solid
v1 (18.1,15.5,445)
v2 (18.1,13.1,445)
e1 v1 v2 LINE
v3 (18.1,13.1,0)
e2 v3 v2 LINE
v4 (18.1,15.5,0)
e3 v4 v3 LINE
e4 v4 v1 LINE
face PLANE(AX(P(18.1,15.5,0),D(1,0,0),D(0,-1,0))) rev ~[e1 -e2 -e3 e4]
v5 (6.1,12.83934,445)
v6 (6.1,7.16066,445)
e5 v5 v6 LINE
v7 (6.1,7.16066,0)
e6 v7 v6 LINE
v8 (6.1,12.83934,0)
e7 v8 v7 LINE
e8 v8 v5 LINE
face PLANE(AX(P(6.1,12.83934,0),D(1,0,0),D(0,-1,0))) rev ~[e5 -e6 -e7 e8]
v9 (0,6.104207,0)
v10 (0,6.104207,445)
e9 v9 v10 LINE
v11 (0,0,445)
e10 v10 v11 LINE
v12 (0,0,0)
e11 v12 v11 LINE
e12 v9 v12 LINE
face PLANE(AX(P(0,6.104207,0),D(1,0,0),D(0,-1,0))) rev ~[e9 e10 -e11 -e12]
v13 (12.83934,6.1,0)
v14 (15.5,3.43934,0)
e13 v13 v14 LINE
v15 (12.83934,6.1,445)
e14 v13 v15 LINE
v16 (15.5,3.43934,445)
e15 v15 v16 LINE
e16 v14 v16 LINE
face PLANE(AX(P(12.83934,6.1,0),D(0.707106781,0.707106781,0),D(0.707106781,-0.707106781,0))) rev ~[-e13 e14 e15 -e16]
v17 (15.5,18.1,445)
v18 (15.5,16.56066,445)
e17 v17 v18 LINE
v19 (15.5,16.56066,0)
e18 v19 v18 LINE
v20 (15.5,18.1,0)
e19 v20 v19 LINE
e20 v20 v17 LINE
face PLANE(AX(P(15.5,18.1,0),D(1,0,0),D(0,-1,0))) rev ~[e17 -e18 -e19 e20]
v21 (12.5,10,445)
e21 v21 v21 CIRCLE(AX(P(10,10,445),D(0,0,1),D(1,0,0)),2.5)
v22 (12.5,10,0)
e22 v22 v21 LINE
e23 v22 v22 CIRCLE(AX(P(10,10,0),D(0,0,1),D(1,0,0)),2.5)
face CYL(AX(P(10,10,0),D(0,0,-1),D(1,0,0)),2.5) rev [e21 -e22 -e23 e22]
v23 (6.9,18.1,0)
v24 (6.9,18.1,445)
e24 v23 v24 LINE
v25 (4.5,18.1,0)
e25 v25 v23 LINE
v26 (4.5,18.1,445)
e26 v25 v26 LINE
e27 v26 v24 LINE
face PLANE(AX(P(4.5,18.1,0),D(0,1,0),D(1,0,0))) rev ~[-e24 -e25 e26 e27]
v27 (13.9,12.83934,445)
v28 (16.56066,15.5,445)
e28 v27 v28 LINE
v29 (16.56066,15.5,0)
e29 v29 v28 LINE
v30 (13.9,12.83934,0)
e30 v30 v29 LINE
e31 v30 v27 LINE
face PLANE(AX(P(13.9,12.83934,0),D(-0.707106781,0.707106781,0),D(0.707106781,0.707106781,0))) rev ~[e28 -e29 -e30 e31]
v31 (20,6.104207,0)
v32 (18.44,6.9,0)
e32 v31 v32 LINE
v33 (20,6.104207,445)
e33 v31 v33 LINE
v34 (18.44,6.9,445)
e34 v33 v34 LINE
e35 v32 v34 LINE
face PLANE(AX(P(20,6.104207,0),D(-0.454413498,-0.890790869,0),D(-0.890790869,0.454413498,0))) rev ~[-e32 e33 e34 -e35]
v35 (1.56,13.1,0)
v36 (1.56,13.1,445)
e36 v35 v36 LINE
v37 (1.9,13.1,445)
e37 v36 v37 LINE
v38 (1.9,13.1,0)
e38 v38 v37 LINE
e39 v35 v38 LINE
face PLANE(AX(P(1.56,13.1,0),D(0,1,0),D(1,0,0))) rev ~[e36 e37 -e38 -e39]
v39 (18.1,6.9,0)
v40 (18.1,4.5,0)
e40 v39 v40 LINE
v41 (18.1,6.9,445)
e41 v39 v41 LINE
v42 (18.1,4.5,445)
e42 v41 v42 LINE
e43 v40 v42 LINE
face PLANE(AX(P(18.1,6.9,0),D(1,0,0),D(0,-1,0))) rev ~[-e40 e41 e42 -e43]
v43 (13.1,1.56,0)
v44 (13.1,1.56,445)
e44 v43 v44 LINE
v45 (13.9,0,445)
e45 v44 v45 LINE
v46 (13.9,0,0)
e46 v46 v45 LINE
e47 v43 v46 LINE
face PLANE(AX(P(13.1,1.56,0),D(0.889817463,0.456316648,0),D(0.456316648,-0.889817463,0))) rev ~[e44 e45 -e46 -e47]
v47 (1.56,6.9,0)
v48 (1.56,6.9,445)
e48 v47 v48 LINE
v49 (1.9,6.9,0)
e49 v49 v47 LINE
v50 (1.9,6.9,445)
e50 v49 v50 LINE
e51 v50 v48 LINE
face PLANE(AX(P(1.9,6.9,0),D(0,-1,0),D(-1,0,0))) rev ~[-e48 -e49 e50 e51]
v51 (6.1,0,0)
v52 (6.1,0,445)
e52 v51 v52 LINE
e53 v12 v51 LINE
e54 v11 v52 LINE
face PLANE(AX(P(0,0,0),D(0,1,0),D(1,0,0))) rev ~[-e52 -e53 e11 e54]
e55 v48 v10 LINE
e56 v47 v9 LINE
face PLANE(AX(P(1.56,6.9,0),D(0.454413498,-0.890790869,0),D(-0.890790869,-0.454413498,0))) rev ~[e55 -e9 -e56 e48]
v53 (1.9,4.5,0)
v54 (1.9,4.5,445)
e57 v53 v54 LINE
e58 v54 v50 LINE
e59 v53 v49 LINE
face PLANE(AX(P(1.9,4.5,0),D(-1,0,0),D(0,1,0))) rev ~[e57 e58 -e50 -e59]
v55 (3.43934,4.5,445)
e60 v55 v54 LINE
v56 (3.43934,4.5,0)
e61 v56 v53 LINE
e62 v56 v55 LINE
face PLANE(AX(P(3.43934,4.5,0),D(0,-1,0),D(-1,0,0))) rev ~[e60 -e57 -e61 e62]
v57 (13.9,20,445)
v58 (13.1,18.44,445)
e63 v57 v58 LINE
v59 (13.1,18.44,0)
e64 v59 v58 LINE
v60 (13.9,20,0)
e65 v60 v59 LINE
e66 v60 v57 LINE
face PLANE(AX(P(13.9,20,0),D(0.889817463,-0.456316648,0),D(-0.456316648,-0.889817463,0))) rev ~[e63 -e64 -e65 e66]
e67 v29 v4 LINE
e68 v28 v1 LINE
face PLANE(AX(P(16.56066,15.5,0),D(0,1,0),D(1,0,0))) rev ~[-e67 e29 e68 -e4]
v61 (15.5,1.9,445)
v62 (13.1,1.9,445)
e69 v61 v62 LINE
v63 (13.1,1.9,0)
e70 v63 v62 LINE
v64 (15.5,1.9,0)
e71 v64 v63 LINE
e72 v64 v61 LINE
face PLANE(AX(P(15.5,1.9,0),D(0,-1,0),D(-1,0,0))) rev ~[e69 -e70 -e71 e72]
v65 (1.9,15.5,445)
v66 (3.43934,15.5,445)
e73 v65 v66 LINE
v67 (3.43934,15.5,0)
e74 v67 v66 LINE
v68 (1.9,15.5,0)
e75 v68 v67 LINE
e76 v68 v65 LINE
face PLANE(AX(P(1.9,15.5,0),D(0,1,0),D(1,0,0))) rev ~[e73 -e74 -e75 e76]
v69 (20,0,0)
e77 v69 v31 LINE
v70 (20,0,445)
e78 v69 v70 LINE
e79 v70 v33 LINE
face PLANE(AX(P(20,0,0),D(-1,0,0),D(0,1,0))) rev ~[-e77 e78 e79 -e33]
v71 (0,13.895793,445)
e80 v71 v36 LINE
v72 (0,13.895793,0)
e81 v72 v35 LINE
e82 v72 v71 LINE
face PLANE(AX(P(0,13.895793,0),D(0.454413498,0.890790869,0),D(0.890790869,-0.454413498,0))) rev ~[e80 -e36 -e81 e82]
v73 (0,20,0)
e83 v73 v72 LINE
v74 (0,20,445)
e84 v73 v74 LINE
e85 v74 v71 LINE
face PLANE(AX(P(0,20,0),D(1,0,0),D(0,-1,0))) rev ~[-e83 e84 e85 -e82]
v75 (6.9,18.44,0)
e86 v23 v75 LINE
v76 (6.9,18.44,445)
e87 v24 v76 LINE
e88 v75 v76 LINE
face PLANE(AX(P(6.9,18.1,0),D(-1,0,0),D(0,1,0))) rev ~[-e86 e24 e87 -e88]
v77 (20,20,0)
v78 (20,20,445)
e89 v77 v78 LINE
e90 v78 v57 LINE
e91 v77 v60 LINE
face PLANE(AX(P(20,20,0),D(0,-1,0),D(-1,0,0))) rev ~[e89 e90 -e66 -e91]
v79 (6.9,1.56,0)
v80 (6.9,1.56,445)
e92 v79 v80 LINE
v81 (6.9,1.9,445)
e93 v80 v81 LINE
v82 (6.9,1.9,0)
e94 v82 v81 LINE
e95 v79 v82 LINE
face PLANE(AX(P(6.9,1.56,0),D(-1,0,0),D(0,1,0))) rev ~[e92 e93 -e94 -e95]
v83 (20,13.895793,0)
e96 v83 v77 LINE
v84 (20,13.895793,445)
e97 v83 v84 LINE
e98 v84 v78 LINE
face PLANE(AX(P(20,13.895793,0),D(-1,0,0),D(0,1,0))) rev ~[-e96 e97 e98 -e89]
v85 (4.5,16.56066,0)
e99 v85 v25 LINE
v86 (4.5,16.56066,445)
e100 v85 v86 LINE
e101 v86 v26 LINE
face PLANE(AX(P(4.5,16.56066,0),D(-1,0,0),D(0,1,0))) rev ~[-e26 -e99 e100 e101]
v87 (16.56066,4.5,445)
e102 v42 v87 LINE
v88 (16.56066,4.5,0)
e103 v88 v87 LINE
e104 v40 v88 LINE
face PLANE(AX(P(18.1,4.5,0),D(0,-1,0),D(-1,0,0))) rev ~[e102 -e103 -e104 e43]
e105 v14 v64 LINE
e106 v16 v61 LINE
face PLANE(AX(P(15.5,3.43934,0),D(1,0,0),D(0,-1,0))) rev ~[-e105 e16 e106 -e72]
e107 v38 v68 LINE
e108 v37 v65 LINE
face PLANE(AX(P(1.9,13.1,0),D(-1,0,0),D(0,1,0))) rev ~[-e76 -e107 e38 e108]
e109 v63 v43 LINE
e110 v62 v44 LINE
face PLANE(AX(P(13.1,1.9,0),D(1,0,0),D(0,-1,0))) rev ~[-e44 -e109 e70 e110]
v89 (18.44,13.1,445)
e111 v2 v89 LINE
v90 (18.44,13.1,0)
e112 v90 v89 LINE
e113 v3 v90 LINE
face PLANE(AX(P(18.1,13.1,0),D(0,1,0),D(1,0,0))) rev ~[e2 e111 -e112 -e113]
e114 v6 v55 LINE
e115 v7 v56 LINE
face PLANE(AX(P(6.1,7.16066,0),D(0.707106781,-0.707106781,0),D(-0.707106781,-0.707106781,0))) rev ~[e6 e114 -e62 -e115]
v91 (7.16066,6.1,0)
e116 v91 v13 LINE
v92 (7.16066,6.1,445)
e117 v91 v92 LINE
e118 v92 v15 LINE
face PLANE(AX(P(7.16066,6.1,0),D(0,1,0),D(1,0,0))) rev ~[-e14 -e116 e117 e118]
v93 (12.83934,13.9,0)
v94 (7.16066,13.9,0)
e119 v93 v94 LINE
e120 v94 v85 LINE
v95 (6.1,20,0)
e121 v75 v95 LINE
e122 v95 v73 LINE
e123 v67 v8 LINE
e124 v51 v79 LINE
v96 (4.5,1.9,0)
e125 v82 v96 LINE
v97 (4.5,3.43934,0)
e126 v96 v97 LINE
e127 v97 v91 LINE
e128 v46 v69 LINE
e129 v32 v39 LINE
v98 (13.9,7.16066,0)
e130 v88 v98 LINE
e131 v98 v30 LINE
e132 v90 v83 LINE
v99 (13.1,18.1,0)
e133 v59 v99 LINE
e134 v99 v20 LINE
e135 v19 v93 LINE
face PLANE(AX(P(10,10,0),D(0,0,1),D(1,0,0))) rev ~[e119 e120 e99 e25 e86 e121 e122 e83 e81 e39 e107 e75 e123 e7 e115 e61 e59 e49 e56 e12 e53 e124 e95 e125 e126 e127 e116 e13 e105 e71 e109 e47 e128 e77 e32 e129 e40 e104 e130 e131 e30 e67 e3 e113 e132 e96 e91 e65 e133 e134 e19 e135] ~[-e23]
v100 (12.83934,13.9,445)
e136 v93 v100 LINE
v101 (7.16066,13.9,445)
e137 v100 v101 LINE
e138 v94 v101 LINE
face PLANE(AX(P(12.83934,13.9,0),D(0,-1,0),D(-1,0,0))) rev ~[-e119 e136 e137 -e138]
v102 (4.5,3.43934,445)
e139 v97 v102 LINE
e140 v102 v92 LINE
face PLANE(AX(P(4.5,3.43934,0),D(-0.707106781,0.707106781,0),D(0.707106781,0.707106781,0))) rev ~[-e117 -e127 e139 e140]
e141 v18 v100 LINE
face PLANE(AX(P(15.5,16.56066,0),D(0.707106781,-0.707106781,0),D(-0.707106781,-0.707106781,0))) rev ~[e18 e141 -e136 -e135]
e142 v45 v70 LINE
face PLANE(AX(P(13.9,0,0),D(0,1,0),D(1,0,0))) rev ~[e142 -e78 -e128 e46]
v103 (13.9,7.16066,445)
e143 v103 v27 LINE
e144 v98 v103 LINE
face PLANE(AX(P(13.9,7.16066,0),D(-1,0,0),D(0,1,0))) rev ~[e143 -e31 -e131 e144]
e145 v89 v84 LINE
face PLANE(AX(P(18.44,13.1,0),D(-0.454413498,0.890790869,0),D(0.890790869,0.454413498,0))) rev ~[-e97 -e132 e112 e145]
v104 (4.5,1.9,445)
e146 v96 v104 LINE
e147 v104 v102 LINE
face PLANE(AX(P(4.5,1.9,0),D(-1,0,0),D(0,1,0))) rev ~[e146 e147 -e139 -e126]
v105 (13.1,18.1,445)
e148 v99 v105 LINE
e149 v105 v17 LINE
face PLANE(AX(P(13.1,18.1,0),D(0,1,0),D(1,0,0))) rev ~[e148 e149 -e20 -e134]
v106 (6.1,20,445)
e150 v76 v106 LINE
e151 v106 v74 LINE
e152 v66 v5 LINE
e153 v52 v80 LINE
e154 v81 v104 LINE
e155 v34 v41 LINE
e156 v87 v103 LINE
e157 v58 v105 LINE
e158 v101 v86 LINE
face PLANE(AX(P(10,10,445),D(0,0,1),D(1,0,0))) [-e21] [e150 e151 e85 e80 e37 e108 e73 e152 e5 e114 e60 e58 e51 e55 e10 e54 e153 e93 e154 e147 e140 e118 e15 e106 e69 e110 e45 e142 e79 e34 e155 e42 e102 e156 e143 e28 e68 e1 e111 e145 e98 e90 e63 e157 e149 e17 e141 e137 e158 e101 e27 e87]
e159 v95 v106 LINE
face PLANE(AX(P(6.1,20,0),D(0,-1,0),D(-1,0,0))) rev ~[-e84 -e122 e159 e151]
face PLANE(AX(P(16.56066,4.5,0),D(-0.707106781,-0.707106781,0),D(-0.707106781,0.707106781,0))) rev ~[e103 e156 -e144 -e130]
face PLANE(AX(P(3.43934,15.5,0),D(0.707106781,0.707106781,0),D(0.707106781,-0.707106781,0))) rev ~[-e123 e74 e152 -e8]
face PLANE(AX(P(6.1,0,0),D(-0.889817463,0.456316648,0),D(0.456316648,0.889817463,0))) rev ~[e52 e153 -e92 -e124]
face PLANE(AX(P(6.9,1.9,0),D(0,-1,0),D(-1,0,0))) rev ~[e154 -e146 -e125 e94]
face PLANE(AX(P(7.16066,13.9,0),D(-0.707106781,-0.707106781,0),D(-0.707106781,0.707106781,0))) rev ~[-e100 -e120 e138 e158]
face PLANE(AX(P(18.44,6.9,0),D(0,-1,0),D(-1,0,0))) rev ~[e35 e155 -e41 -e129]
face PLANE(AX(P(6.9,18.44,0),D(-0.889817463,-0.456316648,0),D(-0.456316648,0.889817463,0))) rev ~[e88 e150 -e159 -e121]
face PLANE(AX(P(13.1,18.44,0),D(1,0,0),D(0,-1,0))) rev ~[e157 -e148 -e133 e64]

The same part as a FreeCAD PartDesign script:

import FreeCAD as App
import Part
import Sketcher

V = App.Vector
Q = App.Units.Quantity


def add_polygon(sketch, points):
    """Adds a closed chain of lines whose ends are joined by coincident constraints."""
    first, n = sketch.GeometryCount, len(points)
    for a, b in zip(points, points[1:] + points[:1]):
        sketch.addGeometry(Part.LineSegment(App.Vector(*a, 0), App.Vector(*b, 0)), False)
    for i in range(n):
        sketch.addConstraint(Sketcher.Constraint("Coincident", first + i, 2, first + (i + 1) % n, 1))

doc = App.newDocument("Part")
params = doc.addObject("Spreadsheet::Sheet", "Params")
for row, (alias, value) in enumerate([
    ("sketch1_diameter", "5 mm"),
    ("sketch1_width", "6.1 mm"),
    ("sketch1_width2", "2.4 mm"),
    ("sketch1_width3", "0.34 mm"),
    ("pad1_length", "445 mm"),
], start=1):
    params.set(f"A{row}", alias)
    params.set(f"B{row}", "=" + value)
    params.setAlias(f"B{row}", alias)

body = doc.addObject("PartDesign::Body", "Body")

sketch1 = body.newObject("Sketcher::SketchObject", "Sketch")
sketch1.AttachmentSupport = (doc.getObject("XY_Plane"), [""])
sketch1.MapMode = "FlatFace"
add_polygon(sketch1, [(6.1, 20), (0, 20), (0, 13.895793), (1.56, 13.1), (1.9, 13.1), (1.9, 15.5), (3.43934, 15.5), (6.1, 12.83934), (6.1, 7.16066), (3.43934, 4.5), (1.9, 4.5), (1.9, 6.9), (1.56, 6.9), (0, 6.104207), (0, 0), (6.1, 0), (6.9, 1.56), (6.9, 1.9), (4.5, 1.9), (4.5, 3.43934), (7.16066, 6.1), (12.83934, 6.1), (15.5, 3.43934), (15.5, 1.9), (13.1, 1.9), (13.1, 1.56), (13.9, 0), (20, 0), (20, 6.104207), (18.44, 6.9), (18.1, 6.9), (18.1, 4.5), (16.56066, 4.5), (13.9, 7.16066), (13.9, 12.83934), (16.56066, 15.5), (18.1, 15.5), (18.1, 13.1), (18.44, 13.1), (20, 13.895793), (20, 20), (13.9, 20), (13.1, 18.44), (13.1, 18.1), (15.5, 18.1), (15.5, 16.56066), (12.83934, 13.9), (7.16066, 13.9), (4.5, 16.56066), (4.5, 18.1), (6.9, 18.1), (6.9, 18.44)])
sketch1.addGeometry(Part.Circle(V(10, 10, 0), V(0, 0, 1), 2.5), False)
sketch1.addConstraint([
    Sketcher.Constraint("Horizontal", 0),
    Sketcher.Constraint("Vertical", 1),
    Sketcher.Constraint("Horizontal", 3),
    Sketcher.Constraint("Vertical", 4),
    Sketcher.Constraint("Horizontal", 5),
    Sketcher.Constraint("Vertical", 7),
    Sketcher.Constraint("Horizontal", 9),
    Sketcher.Constraint("Vertical", 10),
    Sketcher.Constraint("Horizontal", 11),
    Sketcher.Constraint("Vertical", 13),
    Sketcher.Constraint("Horizontal", 14),
    Sketcher.Constraint("Vertical", 16),
    Sketcher.Constraint("Horizontal", 17),
    Sketcher.Constraint("Vertical", 18),
    Sketcher.Constraint("Horizontal", 20),
    Sketcher.Constraint("Vertical", 22),
    Sketcher.Constraint("Horizontal", 23),
    Sketcher.Constraint("Vertical", 24),
    Sketcher.Constraint("Horizontal", 26),
    Sketcher.Constraint("Vertical", 27),
    Sketcher.Constraint("Horizontal", 29),
    Sketcher.Constraint("Vertical", 30),
    Sketcher.Constraint("Horizontal", 31),
    Sketcher.Constraint("Vertical", 33),
    Sketcher.Constraint("Horizontal", 35),
    Sketcher.Constraint("Vertical", 36),
    Sketcher.Constraint("Horizontal", 37),
    Sketcher.Constraint("Vertical", 39),
    Sketcher.Constraint("Horizontal", 40),
    Sketcher.Constraint("Vertical", 42),
    Sketcher.Constraint("Horizontal", 43),
    Sketcher.Constraint("Vertical", 44),
    Sketcher.Constraint("Horizontal", 46),
    Sketcher.Constraint("Vertical", 48),
    Sketcher.Constraint("Horizontal", 49),
    Sketcher.Constraint("Vertical", 50),
    Sketcher.Constraint("Coincident", 13, 2, -1, 1),
    Sketcher.Constraint("PointOnObject", 0, 2, -2),
    Sketcher.Constraint("PointOnObject", 25, 2, -1),
    Sketcher.Constraint("Perpendicular", 6, 8),
    Sketcher.Constraint("Parallel", 8, 19),
    Sketcher.Constraint("Perpendicular", 19, 21),
    Sketcher.Constraint("Parallel", 2, 28),
    Sketcher.Constraint("Parallel", 21, 32),
    Sketcher.Constraint("Perpendicular", 32, 34),
    Sketcher.Constraint("Parallel", 12, 38),
    Sketcher.Constraint("Parallel", 15, 41),
    Sketcher.Constraint("Parallel", 34, 45),
    Sketcher.Constraint("Perpendicular", 45, 47),
    Sketcher.Constraint("Parallel", 25, 51),
    Sketcher.Constraint("Horizontal", 18, 2, 21, 2),
    Sketcher.Constraint("Horizontal", 17, 2, 22, 2),
    Sketcher.Constraint("Horizontal", 15, 2, 24, 2),
    Sketcher.Constraint("Horizontal", 12, 2, 27, 2),
    Sketcher.Constraint("Horizontal", 11, 2, 28, 2),
    Sketcher.Constraint("Horizontal", 9, 2, 30, 2),
    Sketcher.Constraint("Horizontal", 7, 2, 32, 2),
    Sketcher.Constraint("Horizontal", 6, 2, 33, 2),
    Sketcher.Constraint("Horizontal", 5, 2, 34, 2),
    Sketcher.Constraint("Horizontal", 3, 2, 36, 2),
    Sketcher.Constraint("Horizontal", 1, 2, 38, 2),
    Sketcher.Constraint("Horizontal", 0, 2, 39, 2),
    Sketcher.Constraint("Horizontal", 44, 2, 47, 2),
    Sketcher.Constraint("Horizontal", 43, 2, 48, 2),
    Sketcher.Constraint("Horizontal", 41, 2, 50, 2),
    Sketcher.Constraint("Vertical", 5, 2, 8, 2),
    Sketcher.Constraint("Vertical", 4, 2, 9, 2),
    Sketcher.Constraint("Vertical", 2, 2, 11, 2),
    Sketcher.Constraint("Vertical", 7, 2, 14, 2),
    Sketcher.Constraint("Vertical", 25, 2, 32, 2),
    Sketcher.Constraint("Vertical", 31, 2, 34, 2),
    Sketcher.Constraint("Vertical", 30, 2, 35, 2),
    Sketcher.Constraint("Vertical", 28, 2, 37, 2),
    Sketcher.Constraint("Vertical", 27, 2, 38, 2),
    Sketcher.Constraint("Vertical", 33, 2, 40, 2),
    Sketcher.Constraint("Vertical", 24, 2, 41, 2),
    Sketcher.Constraint("Vertical", 22, 2, 43, 2),
    Sketcher.Constraint("Vertical", 20, 2, 45, 2),
    Sketcher.Constraint("Vertical", 19, 2, 46, 2),
    Sketcher.Constraint("Vertical", 16, 2, 49, 2),
    Sketcher.Constraint("Vertical", 14, 2, 51, 2),
    Sketcher.Constraint("Equal", 17, 23),
    Sketcher.Constraint("Equal", 14, 26),
    Sketcher.Constraint("Equal", 11, 29),
    Sketcher.Constraint("Equal", 49, 4),
    Sketcher.Constraint("Equal", 46, 7),
    Sketcher.Constraint("Equal", 4, 10),
    Sketcher.Constraint("Equal", 1, 13),
    Sketcher.Constraint("Equal", 37, 16),
    Sketcher.Constraint("Equal", 35, 18),
    Sketcher.Constraint("Equal", 24, 42),
    Sketcher.Constraint("Equal", 22, 44),
    Sketcher.Constraint("Equal", 8, 19),
    Sketcher.Constraint("Diameter", 52, Q("5 mm")),
    Sketcher.Constraint("DistanceX", 0, 2, 0, 1, Q("6.1 mm")),
    Sketcher.Constraint("DistanceX", 17, 2, 17, 1, Q("2.4 mm")),
    Sketcher.Constraint("DistanceX", -1, 1, 52, 3, Q("10 mm")),
    Sketcher.Constraint("DistanceY", -1, 1, 52, 3, Q("10 mm")),
    Sketcher.Constraint("DistanceY", -1, 1, 0, 2, Q("20 mm")),
    Sketcher.Constraint("DistanceX", -1, 1, 26, 2, Q("20 mm")),
    Sketcher.Constraint("DistanceX", 9, 2, 15, 2, Q("5 mm")),
    Sketcher.Constraint("DistanceY", 22, 2, 28, 2, Q("5 mm")),
    Sketcher.Constraint("DistanceX", 3, 1, 3, 2, Q("0.34 mm")),
    Sketcher.Constraint("DistanceY", -1, 1, 2, 2, Q("13.1 mm")),
    Sketcher.Constraint("DistanceX", 5, 1, 5, 2, Q("1.53934 mm")),
    Sketcher.Constraint("DistanceY", 1, 2, 1, 1, Q("6.104207 mm")),
])
sketch1.setExpression("Constraints[145]", "Params.sketch1_diameter")
sketch1.setExpression("Constraints[146]", "Params.sketch1_width")
sketch1.setExpression("Constraints[147]", "Params.sketch1_width2")
sketch1.setExpression("Constraints[154]", "Params.sketch1_width3")
pad1 = body.newObject("PartDesign::Pad", "Pad")
pad1.Profile = sketch1
pad1.setExpression("Length", "Params.pad1_length")

doc.recompute()
